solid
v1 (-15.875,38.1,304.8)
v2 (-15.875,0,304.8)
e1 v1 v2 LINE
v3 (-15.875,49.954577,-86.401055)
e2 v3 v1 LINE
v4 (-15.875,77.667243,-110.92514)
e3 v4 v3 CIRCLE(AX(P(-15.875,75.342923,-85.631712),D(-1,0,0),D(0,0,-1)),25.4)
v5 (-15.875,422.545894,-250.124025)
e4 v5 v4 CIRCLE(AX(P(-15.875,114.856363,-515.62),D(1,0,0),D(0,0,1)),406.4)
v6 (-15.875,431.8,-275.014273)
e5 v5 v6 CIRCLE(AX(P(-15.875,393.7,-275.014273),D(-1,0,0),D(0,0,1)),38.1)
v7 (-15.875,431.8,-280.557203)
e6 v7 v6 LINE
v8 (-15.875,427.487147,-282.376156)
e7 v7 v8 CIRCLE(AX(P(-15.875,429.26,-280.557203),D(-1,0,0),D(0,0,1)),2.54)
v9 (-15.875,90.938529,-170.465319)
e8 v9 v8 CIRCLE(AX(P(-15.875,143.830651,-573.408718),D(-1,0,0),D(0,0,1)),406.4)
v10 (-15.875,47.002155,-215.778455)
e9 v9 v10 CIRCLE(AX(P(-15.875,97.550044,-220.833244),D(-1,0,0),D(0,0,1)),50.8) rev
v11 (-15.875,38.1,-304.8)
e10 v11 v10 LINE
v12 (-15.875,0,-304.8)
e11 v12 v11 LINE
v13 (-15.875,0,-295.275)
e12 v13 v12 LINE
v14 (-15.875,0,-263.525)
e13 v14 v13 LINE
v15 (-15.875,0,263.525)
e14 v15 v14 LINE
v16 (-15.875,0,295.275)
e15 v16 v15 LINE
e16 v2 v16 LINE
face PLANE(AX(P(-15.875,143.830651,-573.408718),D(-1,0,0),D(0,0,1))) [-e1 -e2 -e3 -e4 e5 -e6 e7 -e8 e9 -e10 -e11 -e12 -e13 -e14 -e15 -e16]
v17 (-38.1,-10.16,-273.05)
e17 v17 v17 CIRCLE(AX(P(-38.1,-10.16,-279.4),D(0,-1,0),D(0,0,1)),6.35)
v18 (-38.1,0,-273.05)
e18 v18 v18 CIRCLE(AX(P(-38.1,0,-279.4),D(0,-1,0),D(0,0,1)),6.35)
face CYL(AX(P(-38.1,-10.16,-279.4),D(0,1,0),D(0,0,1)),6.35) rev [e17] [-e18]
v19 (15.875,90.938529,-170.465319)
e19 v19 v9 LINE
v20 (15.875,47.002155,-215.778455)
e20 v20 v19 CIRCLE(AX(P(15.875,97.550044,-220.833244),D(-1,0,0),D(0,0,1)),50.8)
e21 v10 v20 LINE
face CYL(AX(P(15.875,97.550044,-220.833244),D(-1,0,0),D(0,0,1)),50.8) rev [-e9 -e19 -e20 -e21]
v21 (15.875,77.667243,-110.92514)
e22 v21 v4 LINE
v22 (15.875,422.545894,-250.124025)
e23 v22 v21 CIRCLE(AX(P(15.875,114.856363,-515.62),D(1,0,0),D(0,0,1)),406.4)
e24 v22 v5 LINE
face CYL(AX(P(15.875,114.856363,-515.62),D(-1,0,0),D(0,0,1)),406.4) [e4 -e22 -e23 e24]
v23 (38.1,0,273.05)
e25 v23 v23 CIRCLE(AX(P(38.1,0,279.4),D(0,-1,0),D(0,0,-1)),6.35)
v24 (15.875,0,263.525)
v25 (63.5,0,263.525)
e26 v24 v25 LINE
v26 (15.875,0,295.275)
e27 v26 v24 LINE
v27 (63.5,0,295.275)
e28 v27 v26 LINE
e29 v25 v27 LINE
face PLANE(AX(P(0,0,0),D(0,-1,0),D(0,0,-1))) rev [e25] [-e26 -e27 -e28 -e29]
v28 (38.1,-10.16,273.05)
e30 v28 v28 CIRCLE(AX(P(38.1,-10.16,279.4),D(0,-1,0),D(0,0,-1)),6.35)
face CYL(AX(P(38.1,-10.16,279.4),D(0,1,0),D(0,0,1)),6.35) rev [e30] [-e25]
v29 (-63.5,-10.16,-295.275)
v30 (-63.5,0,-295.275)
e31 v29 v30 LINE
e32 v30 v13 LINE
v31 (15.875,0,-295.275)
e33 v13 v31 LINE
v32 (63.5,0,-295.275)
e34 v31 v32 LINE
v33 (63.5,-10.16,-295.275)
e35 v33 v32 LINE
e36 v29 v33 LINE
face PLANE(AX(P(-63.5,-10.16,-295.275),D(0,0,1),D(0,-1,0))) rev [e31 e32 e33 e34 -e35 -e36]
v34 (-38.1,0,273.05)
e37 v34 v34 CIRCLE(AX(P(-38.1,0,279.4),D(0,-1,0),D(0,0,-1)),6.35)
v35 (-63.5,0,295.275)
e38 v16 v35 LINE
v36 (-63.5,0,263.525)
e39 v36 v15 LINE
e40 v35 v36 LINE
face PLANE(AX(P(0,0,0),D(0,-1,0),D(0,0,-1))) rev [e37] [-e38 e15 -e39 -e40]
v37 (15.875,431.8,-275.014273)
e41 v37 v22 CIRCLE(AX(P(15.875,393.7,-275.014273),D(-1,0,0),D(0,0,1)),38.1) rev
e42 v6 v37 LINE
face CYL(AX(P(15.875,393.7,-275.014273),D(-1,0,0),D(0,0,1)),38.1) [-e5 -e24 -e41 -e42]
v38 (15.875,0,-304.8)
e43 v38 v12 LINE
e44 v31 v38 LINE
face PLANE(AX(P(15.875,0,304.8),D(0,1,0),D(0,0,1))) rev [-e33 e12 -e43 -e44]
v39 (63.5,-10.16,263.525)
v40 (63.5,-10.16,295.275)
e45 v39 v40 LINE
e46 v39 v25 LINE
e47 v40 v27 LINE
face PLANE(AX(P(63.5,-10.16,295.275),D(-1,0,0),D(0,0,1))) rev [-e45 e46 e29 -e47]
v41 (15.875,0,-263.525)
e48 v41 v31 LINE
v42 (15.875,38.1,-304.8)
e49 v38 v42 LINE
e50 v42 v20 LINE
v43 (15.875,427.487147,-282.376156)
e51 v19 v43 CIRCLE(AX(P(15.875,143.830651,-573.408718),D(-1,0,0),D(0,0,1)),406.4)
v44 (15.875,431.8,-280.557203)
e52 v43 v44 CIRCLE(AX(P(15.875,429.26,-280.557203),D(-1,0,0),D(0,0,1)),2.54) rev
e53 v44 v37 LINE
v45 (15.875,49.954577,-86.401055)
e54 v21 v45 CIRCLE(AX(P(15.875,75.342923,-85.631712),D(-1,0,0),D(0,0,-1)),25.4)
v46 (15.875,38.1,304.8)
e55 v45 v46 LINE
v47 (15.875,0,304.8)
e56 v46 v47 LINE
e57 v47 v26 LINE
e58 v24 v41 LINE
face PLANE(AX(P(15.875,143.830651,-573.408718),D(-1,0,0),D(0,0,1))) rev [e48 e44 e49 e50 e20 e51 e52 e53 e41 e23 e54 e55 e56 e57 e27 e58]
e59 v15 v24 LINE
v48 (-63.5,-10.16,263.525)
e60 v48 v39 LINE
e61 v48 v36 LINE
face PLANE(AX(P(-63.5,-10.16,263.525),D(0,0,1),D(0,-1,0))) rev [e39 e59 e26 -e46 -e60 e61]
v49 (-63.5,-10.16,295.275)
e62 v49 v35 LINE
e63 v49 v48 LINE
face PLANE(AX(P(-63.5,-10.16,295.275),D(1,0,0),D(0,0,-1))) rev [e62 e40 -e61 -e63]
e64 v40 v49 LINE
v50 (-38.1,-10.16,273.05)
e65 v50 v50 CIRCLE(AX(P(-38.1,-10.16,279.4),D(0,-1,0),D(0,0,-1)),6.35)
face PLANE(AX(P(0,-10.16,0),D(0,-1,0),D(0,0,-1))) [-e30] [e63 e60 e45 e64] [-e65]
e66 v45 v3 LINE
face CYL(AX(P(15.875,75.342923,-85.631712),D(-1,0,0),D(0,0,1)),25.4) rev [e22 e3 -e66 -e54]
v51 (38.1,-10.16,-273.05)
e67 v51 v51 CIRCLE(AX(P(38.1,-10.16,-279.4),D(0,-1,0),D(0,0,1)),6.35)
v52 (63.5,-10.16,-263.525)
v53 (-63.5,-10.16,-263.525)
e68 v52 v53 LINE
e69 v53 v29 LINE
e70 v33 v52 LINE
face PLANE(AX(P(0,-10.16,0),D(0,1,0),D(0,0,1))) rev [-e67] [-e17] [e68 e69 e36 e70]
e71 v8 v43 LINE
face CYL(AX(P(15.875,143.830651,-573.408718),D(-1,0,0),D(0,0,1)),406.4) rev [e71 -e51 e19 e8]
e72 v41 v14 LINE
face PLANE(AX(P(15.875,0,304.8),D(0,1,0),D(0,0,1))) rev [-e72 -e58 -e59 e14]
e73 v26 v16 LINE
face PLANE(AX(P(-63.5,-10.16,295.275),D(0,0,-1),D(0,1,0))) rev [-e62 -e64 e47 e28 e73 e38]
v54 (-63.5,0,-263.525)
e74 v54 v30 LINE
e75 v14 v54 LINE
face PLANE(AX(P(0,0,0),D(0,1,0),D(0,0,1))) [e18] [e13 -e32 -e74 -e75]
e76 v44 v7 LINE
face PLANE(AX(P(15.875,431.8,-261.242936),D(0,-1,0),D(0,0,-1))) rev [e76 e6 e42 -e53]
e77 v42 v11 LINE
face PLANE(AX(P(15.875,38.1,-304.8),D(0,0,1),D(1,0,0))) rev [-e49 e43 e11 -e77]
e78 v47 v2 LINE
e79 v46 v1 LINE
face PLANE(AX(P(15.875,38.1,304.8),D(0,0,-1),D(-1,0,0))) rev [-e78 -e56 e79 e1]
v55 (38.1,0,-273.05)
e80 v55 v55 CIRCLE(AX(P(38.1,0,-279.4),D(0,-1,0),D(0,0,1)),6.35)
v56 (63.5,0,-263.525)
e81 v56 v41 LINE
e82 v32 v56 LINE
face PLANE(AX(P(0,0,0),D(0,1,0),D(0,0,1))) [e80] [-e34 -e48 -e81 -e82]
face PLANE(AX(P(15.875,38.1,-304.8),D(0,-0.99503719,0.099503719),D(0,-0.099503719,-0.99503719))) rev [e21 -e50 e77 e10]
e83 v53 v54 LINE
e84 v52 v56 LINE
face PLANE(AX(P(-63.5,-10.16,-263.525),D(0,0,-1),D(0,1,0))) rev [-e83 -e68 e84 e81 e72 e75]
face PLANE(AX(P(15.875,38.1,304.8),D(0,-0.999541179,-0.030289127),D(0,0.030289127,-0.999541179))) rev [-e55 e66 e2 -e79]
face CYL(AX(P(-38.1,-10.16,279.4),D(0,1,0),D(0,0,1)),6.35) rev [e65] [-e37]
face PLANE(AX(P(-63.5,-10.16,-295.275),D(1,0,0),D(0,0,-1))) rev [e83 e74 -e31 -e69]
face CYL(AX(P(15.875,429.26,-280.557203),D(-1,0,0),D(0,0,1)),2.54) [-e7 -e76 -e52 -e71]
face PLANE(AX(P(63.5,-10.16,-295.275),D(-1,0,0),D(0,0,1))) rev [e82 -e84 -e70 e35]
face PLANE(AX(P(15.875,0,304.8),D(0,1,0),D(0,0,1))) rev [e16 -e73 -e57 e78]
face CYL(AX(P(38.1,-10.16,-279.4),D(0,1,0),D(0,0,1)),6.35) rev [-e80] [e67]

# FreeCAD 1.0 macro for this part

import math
import FreeCAD as App
import Part
import Sketcher
from FreeCAD import Vector
Q = App.Units.Quantity


def edges_at(feature, points):
    """Names of the edges that pass closest to the given points."""
    edges = feature.Shape.Edges
    near = lambda p: min(range(len(edges)), key=lambda i: edges[i].distToShape(Part.Vertex(*p))[0])
    return sorted({f"Edge{near(p) + 1}" for p in points})


def add_polygon(sketch, points):
    """Adds a closed chain of lines whose ends are joined by coincident constraints."""
    first, n = sketch.GeometryCount, len(points)
    for a, b in zip(points, points[1:] + points[:1]):
        sketch.addGeometry(Part.LineSegment(App.Vector(*a, 0), App.Vector(*b, 0)), False)
    for i in range(n):
        sketch.addConstraint(Sketcher.Constraint("Coincident", first + i, 2, first + (i + 1) % n, 1))

doc = App.newDocument("Part")
params = doc.addObject("Spreadsheet::Sheet", "Params")
for row, (alias, value) in enumerate([
    ("sketch1_radius", "16 in"),
    ("sketch1_radius2", "1 in"),
    ("sketch1_height", "24 in"),
    ("sketch1_height2", "1 in"),
    ("sketch1_width", "1.5 in"),
    ("pad1_length", "1.25 in"),
    ("fillet_radius", "1.5 in"),
    ("fillet2_radius", "2 in"),
    ("sketch2_diameter", "0.5 in"),
    ("sketch2_width", "5 in"),
    ("sketch2_height", "1.25 in"),
    ("pad2_length", "0.4 in"),
    ("fillet3_radius", "0.1 in"),
], start=1):
    params.set(f"A{row}", alias)
    params.set(f"B{row}", "=" + value)
    params.setAlias(f"B{row}", alias)

body = doc.addObject("PartDesign::Body", "Body")

# Sketch on YZ plane
sketch1 = body.newObject("Sketcher::SketchObject", "Sketch")
sketch1.AttachmentSupport = (doc.getObject("YZ_Plane"), [""])
sketch1.MapMode = "FlatFace"
sketch1.addGeometry([
    Part.LineSegment(Vector(0, 304.8, 0), Vector(0, -304.8, 0)),  # 0
    Part.LineSegment(Vector(0, -304.8, 0), Vector(38.1, -304.8, 0)),  # 1
    Part.LineSegment(Vector(38.1, -304.8, 0), Vector(50.8, -177.8, 0)),  # 2
    Part.ArcOfCircle(Part.Circle(Vector(143.830651, -573.408718, 0), Vector(0, 0, 1), 406.4), math.radians(44.880016), math.radians(103.233143)),  # 3
    Part.LineSegment(Vector(431.8, -286.642936, 0), Vector(431.8, -261.242936, 0)),  # 4
    Part.ArcOfCircle(Part.Circle(Vector(114.856363, -515.62, 0), Vector(0, 0, 1), 406.4), math.radians(38.750319), math.radians(95.250405)),  # 5
    Part.ArcOfCircle(Part.Circle(Vector(75.342923, -85.631712, 0), Vector(0, 0, 1), 25.4), math.radians(-178.264295), math.radians(-84.749595)),  # 6
    Part.LineSegment(Vector(49.954577, -86.401055, 0), Vector(38.1, 304.8, 0)),  # 7
    Part.LineSegment(Vector(38.1, 304.8, 0), Vector(0, 304.8, 0)),  # 8
], False)
sketch1.addConstraint([
    Sketcher.Constraint("Coincident", 0, 2, 1, 1),
    Sketcher.Constraint("Coincident", 1, 2, 2, 1),
    Sketcher.Constraint("Coincident", 2, 2, 3, 2),
    Sketcher.Constraint("Coincident", 3, 1, 4, 1),
    Sketcher.Constraint("Coincident", 4, 2, 5, 1),
    Sketcher.Constraint("Tangent", 5, 2, 6, 2),
    Sketcher.Constraint("Tangent", 6, 1, 7, 1),
    Sketcher.Constraint("Coincident", 7, 2, 8, 1),
    Sketcher.Constraint("Coincident", 8, 2, 0, 1),
    Sketcher.Constraint("Vertical", 0),
    Sketcher.Constraint("Horizontal", 1),
    Sketcher.Constraint("Vertical", 4),
    Sketcher.Constraint("Horizontal", 8),
    Sketcher.Constraint("Equal", 3, 5),
    Sketcher.Constraint("Symmetric", 0, 2, 8, 2, -1, 1),
    Sketcher.Constraint("Vertical", 1, 2, 7, 2),
    Sketcher.Constraint("Radius", 3, Q("16 in")),
    Sketcher.Constraint("Radius", 6, Q("1 in")),
    Sketcher.Constraint("DistanceY", 0, 2, 0, 1, Q("24 in")),
    Sketcher.Constraint("DistanceY", 4, 1, 4, 2, Q("1 in")),
    Sketcher.Constraint("DistanceX", 1, 1, 1, 2, Q("1.5 in")),
    Sketcher.Constraint("DistanceX", -1, 1, 2, 2, Q("2 in")),
    Sketcher.Constraint("DistanceY", 2, 2, -1, 1, Q("7 in")),
    Sketcher.Constraint("DistanceX", -1, 1, 3, 1, Q("17 in")),
    Sketcher.Constraint("DistanceY", 5, 3, -1, 1, Q("20.3 in")),
    Sketcher.Constraint("Distance", 7, 391.380629),
    Sketcher.Constraint("DistanceX", -1, 1, 3, 3, 143.830651),
])
sketch1.setExpression("Constraints[16]", "Params.sketch1_radius")
sketch1.setExpression("Constraints[17]", "Params.sketch1_radius2")
sketch1.setExpression("Constraints[18]", "Params.sketch1_height")
sketch1.setExpression("Constraints[19]", "Params.sketch1_height2")
sketch1.setExpression("Constraints[20]", "Params.sketch1_width")
pad1 = body.newObject("PartDesign::Pad", "Pad")
pad1.Profile = sketch1
pad1.setExpression("Length", "Params.pad1_length")
pad1.Midplane = True
doc.recompute()

fillet = body.newObject("PartDesign::Fillet", "Fillet")
fillet.Base = (pad1, edges_at(pad1, [(0, 431.8, -261.243)]))
fillet.setExpression("Radius", "Params.fillet_radius")
doc.recompute()

fillet2 = body.newObject("PartDesign::Fillet", "Fillet001")
fillet2.Base = (fillet, edges_at(fillet, [(0, 50.8, -177.8)]))
fillet2.setExpression("Radius", "Params.fillet2_radius")

# Sketch on XZ plane
sketch2 = body.newObject("Sketcher::SketchObject", "Sketch001")
sketch2.AttachmentSupport = (doc.getObject("XZ_Plane"), [""])
sketch2.MapMode = "FlatFace"
add_polygon(sketch2, [(-64, 295), (-64, 264), (64, 264), (64, 295)])  # lines 0-3
sketch2.addGeometry(Part.Circle(Vector(-38, 279, 0), Vector(0, 0, 1), 6), False)  # 4
sketch2.addGeometry(Part.Circle(Vector(38, 279, 0), Vector(0, 0, 1), 6), False)  # 5
add_polygon(sketch2, [(-64, -264), (-64, -295), (64, -295), (64, -264)])  # lines 6-9
sketch2.addGeometry(Part.Circle(Vector(-38, -279, 0), Vector(0, 0, 1), 6), False)  # 10
sketch2.addGeometry(Part.Circle(Vector(38, -279, 0), Vector(0, 0, 1), 6), False)  # 11
sketch2.addConstraint([
    Sketcher.Constraint("Vertical", 0),
    Sketcher.Constraint("Horizontal", 1),
    Sketcher.Constraint("Vertical", 2),
    Sketcher.Constraint("Horizontal", 3),
    Sketcher.Constraint("Vertical", 6),
    Sketcher.Constraint("Horizontal", 7),
    Sketcher.Constraint("Vertical", 8),
    Sketcher.Constraint("Horizontal", 9),
    Sketcher.Constraint("Equal", 4, 5),
    Sketcher.Constraint("Equal", 5, 10),
    Sketcher.Constraint("Equal", 10, 11),
    Sketcher.Constraint("Symmetric", 5, 3, 10, 3, -1, 1),
    Sketcher.Constraint("Symmetric", 4, 3, 11, 3, -1, 1),
    Sketcher.Constraint("Symmetric", 2, 2, 6, 2, -1, 1),
    Sketcher.Constraint("Symmetric", 0, 2, 8, 2, -1, 1),
    Sketcher.Constraint("Symmetric", 4, 3, 5, 3, -2),
    Sketcher.Constraint("Vertical", 3, 2, 6, 2),
    Sketcher.Constraint("Diameter", 4, Q("0.5 in")),
    Sketcher.Constraint("DistanceX", 1, 1, 1, 2, Q("5 in")),
    Sketcher.Constraint("DistanceY", -1, 1, 4, 3, Q("11 in")),
    Sketcher.Constraint("DistanceX", 4, 3, 5, 3, Q("3 in")),
    Sketcher.Constraint("DistanceY", 6, 2, 0, 2, Q("22 in")),
    Sketcher.Constraint("DistanceY", 0, 2, 0, 1, Q("1.25 in")),
])
sketch2.setExpression("Constraints[25]", "Params.sketch2_diameter")
sketch2.setExpression("Constraints[26]", "Params.sketch2_width")
sketch2.setExpression("Constraints[30]", "Params.sketch2_height")
pad2 = body.newObject("PartDesign::Pad", "Pad001")
pad2.Profile = sketch2
pad2.setExpression("Length", "Params.pad2_length")
doc.recompute()

fillet3 = body.newObject("PartDesign::Fillet", "Fillet002")
fillet3.Base = (pad2, edges_at(pad2, [(0, 431.8, -286.643)]))
fillet3.setExpression("Radius", "Params.fillet3_radius")

doc.recompute()
